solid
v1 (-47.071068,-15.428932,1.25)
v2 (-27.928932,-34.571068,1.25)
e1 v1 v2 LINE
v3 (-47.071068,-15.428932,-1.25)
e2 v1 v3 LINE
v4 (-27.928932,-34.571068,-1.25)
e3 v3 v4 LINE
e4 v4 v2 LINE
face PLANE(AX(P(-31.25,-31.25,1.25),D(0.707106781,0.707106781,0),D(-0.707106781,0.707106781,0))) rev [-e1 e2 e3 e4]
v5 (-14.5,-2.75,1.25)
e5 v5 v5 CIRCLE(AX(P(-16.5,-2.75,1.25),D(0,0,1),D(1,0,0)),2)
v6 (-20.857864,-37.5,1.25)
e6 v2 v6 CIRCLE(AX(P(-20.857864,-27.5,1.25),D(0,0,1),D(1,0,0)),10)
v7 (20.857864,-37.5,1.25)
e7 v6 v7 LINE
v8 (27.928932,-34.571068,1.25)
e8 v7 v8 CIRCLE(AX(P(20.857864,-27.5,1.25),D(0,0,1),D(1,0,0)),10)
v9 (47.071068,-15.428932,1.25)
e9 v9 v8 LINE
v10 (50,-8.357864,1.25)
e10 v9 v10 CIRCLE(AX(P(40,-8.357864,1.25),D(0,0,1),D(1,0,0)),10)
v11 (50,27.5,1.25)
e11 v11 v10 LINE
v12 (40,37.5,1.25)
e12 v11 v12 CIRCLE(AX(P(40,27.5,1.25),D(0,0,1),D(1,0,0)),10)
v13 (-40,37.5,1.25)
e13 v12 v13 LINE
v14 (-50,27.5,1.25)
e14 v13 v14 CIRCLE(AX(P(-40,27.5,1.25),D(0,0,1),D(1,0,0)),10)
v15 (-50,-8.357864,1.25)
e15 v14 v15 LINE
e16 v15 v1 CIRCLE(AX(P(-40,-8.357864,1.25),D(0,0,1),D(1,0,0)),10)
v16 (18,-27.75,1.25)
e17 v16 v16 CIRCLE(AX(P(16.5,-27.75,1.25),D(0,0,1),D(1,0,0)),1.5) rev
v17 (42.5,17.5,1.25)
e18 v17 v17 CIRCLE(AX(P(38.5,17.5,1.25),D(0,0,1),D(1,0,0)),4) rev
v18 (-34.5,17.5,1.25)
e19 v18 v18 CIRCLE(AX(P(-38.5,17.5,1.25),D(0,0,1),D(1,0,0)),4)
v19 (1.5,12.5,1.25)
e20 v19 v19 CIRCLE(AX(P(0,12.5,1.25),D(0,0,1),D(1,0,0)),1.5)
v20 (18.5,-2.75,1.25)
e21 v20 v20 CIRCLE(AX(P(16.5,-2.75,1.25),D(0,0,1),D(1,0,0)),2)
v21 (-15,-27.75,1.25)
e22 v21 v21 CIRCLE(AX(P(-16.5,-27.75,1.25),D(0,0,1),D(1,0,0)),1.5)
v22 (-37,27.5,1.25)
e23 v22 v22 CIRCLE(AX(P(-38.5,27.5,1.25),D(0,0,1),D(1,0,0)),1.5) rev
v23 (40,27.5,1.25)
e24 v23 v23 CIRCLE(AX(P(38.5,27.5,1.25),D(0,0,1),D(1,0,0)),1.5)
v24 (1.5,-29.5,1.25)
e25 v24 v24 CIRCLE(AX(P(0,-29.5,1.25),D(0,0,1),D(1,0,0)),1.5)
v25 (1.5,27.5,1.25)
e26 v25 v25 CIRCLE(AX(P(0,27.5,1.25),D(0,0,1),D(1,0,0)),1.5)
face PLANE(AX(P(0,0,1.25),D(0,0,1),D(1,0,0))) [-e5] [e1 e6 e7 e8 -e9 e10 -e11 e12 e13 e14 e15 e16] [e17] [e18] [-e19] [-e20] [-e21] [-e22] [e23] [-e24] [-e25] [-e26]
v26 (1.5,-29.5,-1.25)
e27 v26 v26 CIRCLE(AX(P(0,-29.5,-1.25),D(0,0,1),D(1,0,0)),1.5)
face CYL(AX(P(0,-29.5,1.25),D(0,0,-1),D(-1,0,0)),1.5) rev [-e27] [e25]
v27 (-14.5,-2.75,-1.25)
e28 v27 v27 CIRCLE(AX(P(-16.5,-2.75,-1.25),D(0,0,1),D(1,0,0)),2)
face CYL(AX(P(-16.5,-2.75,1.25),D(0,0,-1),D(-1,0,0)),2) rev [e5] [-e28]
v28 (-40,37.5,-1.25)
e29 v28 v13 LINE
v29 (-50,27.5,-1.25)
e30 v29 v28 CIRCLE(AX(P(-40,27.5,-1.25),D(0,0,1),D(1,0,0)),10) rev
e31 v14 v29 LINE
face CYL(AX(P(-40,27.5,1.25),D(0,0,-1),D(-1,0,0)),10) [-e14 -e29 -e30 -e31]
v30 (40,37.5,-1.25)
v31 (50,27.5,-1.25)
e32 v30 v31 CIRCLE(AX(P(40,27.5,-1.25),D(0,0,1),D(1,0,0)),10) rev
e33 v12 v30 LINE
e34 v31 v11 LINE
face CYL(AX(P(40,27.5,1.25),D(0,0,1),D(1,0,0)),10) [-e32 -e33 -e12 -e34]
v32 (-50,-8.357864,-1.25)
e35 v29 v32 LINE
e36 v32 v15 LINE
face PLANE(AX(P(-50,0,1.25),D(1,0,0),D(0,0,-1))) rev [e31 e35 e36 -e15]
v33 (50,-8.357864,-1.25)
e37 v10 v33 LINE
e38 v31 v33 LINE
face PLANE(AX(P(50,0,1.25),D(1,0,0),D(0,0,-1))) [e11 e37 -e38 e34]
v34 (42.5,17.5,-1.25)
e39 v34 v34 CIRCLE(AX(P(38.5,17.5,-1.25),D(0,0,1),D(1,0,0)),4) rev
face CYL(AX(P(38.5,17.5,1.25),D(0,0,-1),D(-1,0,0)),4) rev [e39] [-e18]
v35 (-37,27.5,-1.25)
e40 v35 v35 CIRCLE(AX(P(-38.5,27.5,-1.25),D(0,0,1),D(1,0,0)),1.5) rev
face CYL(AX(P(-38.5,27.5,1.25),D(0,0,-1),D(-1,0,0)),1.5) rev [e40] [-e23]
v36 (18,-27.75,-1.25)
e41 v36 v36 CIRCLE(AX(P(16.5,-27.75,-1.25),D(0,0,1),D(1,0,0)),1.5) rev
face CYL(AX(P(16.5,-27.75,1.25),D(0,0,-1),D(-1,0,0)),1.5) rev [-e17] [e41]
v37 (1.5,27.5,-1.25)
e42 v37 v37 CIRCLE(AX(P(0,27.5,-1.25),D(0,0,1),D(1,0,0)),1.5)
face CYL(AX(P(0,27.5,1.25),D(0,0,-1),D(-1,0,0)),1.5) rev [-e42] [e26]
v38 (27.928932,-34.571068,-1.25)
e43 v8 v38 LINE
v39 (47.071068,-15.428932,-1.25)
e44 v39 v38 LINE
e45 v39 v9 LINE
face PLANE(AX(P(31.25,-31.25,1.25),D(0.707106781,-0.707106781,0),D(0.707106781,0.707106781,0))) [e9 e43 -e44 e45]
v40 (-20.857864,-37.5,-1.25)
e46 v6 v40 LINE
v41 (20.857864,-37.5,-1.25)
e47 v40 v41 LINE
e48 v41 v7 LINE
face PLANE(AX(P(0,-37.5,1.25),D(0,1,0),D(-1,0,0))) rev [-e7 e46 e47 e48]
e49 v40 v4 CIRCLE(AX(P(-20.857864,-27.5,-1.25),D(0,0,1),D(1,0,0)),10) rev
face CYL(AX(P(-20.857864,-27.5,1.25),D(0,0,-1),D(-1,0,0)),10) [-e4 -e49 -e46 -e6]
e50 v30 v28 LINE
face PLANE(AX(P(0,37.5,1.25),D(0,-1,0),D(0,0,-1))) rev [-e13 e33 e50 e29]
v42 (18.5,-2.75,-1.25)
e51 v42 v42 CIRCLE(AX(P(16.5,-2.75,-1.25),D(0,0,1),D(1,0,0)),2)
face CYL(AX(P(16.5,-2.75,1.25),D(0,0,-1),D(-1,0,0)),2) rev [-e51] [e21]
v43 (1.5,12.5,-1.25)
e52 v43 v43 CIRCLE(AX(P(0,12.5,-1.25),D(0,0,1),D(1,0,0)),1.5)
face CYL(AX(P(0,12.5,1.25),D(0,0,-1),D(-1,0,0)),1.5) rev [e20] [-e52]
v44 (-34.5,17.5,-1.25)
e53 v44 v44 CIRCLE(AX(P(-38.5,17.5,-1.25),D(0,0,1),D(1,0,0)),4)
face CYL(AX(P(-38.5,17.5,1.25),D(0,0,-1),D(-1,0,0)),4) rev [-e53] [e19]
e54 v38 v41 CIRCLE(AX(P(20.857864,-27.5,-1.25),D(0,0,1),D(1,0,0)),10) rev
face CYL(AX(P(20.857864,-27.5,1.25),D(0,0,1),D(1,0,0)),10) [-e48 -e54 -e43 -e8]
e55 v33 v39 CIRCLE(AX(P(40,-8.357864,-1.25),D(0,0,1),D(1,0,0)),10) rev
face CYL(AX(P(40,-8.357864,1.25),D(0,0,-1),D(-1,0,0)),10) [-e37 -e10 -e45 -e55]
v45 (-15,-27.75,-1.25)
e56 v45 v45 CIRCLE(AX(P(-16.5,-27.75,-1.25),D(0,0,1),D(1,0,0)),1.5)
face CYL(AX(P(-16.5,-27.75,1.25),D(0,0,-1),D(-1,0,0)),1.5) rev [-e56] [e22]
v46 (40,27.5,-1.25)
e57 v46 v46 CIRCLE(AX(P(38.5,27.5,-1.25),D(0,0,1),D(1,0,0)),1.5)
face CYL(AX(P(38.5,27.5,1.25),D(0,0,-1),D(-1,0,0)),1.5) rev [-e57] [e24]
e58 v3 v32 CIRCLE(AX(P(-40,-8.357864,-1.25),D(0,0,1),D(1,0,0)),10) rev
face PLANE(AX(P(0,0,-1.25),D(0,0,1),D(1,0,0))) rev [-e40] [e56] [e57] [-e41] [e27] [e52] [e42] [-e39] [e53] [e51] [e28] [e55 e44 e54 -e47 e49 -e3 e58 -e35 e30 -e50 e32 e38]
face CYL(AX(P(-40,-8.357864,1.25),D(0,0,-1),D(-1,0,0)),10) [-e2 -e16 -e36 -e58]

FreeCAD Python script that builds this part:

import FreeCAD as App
import Part
import Sketcher

V = App.Vector


def edges_at(feature, points):
    """Names of the edges that pass closest to the given points."""
    edges = feature.Shape.Edges
    near = lambda p: min(range(len(edges)), key=lambda i: edges[i].distToShape(Part.Vertex(*p))[0])
    return sorted({f"Edge{near(p) + 1}" for p in points})

doc = App.newDocument("Part")
body = doc.addObject("PartDesign::Body", "Body")

# Sketch on XY plane
sketch1 = body.newObject("Sketcher::SketchObject", "Sketch")
sketch1.AttachmentSupport = (doc.getObject("XY_Plane"), [""])
sketch1.MapMode = "FlatFace"
sketch1.addGeometry(Part.LineSegment(V(50, 37.5, 0), V(-50, 37.5, 0)), False)
sketch1.addGeometry(Part.LineSegment(V(-50, 37.5, 0), V(-50, -12.5, 0)), False)
sketch1.addGeometry(Part.LineSegment(V(-50, -12.5, 0), V(-25, -37.5, 0)), False)
sketch1.addGeometry(Part.LineSegment(V(-25, -37.5, 0), V(25, -37.5, 0)), False)
sketch1.addGeometry(Part.LineSegment(V(25, -37.5, 0), V(50, -12.5, 0)), False)
sketch1.addGeometry(Part.LineSegment(V(50, -12.5, 0), V(50, 37.5, 0)), False)
sketch1.addGeometry(Part.Circle(V(-16.5, -27.8, 0), V(0, 0, 1), 1.5), False)
sketch1.addGeometry(Part.Circle(V(-16.5, -2.8, 0), V(0, 0, 1), 2), False)
sketch1.addGeometry(Part.Circle(V(0, -29.5, 0), V(0, 0, 1), 1.5), False)
sketch1.addGeometry(Part.Circle(V(16.5, -27.8, 0), V(0, 0, 1), 1.5), False)
sketch1.addGeometry(Part.Circle(V(16.5, -2.8, 0), V(0, 0, 1), 2), False)
sketch1.addGeometry(Part.Circle(V(-38.5, 17.5, 0), V(0, 0, 1), 4), False)
sketch1.addGeometry(Part.Circle(V(-38.5, 27.5, 0), V(0, 0, 1), 1.5), False)
sketch1.addGeometry(Part.Circle(V(0, 12.5, 0), V(0, 0, 1), 1.5), False)
sketch1.addGeometry(Part.Circle(V(0, 27.5, 0), V(0, 0, 1), 1.5), False)
sketch1.addGeometry(Part.Circle(V(38.5, 17.5, 0), V(0, 0, 1), 4), False)
sketch1.addGeometry(Part.Circle(V(38.5, 27.5, 0), V(0, 0, 1), 1.5), False)
sketch1.addConstraint(Sketcher.Constraint("Coincident", 0, 2, 1, 1))
sketch1.addConstraint(Sketcher.Constraint("Coincident", 1, 2, 2, 1))
sketch1.addConstraint(Sketcher.Constraint("Coincident", 2, 2, 3, 1))
sketch1.addConstraint(Sketcher.Constraint("Coincident", 3, 2, 4, 1))
sketch1.addConstraint(Sketcher.Constraint("Coincident", 4, 2, 5, 1))
sketch1.addConstraint(Sketcher.Constraint("Coincident", 5, 2, 0, 1))
sketch1.addConstraint(Sketcher.Constraint("Horizontal", 0))
sketch1.addConstraint(Sketcher.Constraint("Vertical", 1))
sketch1.addConstraint(Sketcher.Constraint("Horizontal", 3))
sketch1.addConstraint(Sketcher.Constraint("Vertical", 5))
sketch1.addConstraint(Sketcher.Constraint("Equal", 6, 8))
sketch1.addConstraint(Sketcher.Constraint("Equal", 8, 9))
sketch1.addConstraint(Sketcher.Constraint("Equal", 7, 10))
sketch1.addConstraint(Sketcher.Constraint("Equal", 9, 12))
sketch1.addConstraint(Sketcher.Constraint("Equal", 12, 13))
sketch1.addConstraint(Sketcher.Constraint("Equal", 13, 14))
sketch1.addConstraint(Sketcher.Constraint("Equal", 11, 15))
sketch1.addConstraint(Sketcher.Constraint("Equal", 14, 16))
sketch1.addConstraint(Sketcher.Constraint("Symmetric", 6, 3, 9, 3, -2))
sketch1.addConstraint(Sketcher.Constraint("Symmetric", 7, 3, 10, 3, -2))
sketch1.addConstraint(Sketcher.Constraint("Symmetric", 11, 3, 15, 3, -2))
sketch1.addConstraint(Sketcher.Constraint("Symmetric", 12, 3, 16, 3, -2))
sketch1.addConstraint(Sketcher.Constraint("Symmetric", 1, 2, 4, 2, -2))
sketch1.addConstraint(Sketcher.Constraint("PointOnObject", 8, 3, -2))
sketch1.addConstraint(Sketcher.Constraint("PointOnObject", 13, 3, -2))
sketch1.addConstraint(Sketcher.Constraint("PointOnObject", 14, 3, -2))
sketch1.addConstraint(Sketcher.Constraint("Perpendicular", 2, 4))
sketch1.addConstraint(Sketcher.Constraint("Horizontal", 12, 3, 14, 3))
sketch1.addConstraint(Sketcher.Constraint("Vertical", 6, 3, 7, 3))
sketch1.addConstraint(Sketcher.Constraint("Vertical", 11, 3, 12, 3))
sketch1.addConstraint(Sketcher.Constraint("Equal", 3, 1))
sketch1.addConstraint(Sketcher.Constraint("Equal", 2, 4))
sketch1.addConstraint(Sketcher.Constraint("Diameter", 6, 3.0))
sketch1.addConstraint(Sketcher.Constraint("Diameter", 7, 4.0))
sketch1.addConstraint(Sketcher.Constraint("Diameter", 11, 8.0))
sketch1.addConstraint(Sketcher.Constraint("DistanceX", 0, 2, 0, 1, 100.0))
sketch1.addConstraint(Sketcher.Constraint("DistanceX", 3, 1, 3, 2, 50.0))
sketch1.addConstraint(Sketcher.Constraint("DistanceY", 6, 3, 7, 3, 25.0))
sketch1.addConstraint(Sketcher.Constraint("DistanceX", 6, 3, 9, 3, 33.0))
sketch1.addConstraint(Sketcher.Constraint("DistanceX", 11, 3, 7, 3, 22.0))
sketch1.addConstraint(Sketcher.Constraint("DistanceY", 8, 3, 11, 3, 47.0))
sketch1.addConstraint(Sketcher.Constraint("DistanceY", 11, 3, 12, 3, 10.0))
sketch1.addConstraint(Sketcher.Constraint("DistanceY", 13, 3, 11, 3, 5.0))
sketch1.addConstraint(Sketcher.Constraint("DistanceY", 12, 3, 0, 2, 10.0))
sketch1.addConstraint(Sketcher.Constraint("DistanceY", 8, 3, -1, 1, 29.5))
sketch1.addConstraint(Sketcher.Constraint("DistanceY", 6, 3, -1, 1, 27.75))
pad1 = body.newObject("PartDesign::Pad", "Pad")
pad1.Profile = sketch1
pad1.Length = 2.5
pad1.Midplane = True
doc.recompute()

fillet = body.newObject("PartDesign::Fillet", "Fillet")
fillet.Base = (pad1, edges_at(pad1, [
    (50, -12.5, 0),
    (25, -37.5, 0),
    (-25, -37.5, 0),
    (-50, -12.5, 0),
    (-50, 37.5, 0),
    (50, 37.5, 0),
]))
fillet.Radius = 10

doc.recompute()
